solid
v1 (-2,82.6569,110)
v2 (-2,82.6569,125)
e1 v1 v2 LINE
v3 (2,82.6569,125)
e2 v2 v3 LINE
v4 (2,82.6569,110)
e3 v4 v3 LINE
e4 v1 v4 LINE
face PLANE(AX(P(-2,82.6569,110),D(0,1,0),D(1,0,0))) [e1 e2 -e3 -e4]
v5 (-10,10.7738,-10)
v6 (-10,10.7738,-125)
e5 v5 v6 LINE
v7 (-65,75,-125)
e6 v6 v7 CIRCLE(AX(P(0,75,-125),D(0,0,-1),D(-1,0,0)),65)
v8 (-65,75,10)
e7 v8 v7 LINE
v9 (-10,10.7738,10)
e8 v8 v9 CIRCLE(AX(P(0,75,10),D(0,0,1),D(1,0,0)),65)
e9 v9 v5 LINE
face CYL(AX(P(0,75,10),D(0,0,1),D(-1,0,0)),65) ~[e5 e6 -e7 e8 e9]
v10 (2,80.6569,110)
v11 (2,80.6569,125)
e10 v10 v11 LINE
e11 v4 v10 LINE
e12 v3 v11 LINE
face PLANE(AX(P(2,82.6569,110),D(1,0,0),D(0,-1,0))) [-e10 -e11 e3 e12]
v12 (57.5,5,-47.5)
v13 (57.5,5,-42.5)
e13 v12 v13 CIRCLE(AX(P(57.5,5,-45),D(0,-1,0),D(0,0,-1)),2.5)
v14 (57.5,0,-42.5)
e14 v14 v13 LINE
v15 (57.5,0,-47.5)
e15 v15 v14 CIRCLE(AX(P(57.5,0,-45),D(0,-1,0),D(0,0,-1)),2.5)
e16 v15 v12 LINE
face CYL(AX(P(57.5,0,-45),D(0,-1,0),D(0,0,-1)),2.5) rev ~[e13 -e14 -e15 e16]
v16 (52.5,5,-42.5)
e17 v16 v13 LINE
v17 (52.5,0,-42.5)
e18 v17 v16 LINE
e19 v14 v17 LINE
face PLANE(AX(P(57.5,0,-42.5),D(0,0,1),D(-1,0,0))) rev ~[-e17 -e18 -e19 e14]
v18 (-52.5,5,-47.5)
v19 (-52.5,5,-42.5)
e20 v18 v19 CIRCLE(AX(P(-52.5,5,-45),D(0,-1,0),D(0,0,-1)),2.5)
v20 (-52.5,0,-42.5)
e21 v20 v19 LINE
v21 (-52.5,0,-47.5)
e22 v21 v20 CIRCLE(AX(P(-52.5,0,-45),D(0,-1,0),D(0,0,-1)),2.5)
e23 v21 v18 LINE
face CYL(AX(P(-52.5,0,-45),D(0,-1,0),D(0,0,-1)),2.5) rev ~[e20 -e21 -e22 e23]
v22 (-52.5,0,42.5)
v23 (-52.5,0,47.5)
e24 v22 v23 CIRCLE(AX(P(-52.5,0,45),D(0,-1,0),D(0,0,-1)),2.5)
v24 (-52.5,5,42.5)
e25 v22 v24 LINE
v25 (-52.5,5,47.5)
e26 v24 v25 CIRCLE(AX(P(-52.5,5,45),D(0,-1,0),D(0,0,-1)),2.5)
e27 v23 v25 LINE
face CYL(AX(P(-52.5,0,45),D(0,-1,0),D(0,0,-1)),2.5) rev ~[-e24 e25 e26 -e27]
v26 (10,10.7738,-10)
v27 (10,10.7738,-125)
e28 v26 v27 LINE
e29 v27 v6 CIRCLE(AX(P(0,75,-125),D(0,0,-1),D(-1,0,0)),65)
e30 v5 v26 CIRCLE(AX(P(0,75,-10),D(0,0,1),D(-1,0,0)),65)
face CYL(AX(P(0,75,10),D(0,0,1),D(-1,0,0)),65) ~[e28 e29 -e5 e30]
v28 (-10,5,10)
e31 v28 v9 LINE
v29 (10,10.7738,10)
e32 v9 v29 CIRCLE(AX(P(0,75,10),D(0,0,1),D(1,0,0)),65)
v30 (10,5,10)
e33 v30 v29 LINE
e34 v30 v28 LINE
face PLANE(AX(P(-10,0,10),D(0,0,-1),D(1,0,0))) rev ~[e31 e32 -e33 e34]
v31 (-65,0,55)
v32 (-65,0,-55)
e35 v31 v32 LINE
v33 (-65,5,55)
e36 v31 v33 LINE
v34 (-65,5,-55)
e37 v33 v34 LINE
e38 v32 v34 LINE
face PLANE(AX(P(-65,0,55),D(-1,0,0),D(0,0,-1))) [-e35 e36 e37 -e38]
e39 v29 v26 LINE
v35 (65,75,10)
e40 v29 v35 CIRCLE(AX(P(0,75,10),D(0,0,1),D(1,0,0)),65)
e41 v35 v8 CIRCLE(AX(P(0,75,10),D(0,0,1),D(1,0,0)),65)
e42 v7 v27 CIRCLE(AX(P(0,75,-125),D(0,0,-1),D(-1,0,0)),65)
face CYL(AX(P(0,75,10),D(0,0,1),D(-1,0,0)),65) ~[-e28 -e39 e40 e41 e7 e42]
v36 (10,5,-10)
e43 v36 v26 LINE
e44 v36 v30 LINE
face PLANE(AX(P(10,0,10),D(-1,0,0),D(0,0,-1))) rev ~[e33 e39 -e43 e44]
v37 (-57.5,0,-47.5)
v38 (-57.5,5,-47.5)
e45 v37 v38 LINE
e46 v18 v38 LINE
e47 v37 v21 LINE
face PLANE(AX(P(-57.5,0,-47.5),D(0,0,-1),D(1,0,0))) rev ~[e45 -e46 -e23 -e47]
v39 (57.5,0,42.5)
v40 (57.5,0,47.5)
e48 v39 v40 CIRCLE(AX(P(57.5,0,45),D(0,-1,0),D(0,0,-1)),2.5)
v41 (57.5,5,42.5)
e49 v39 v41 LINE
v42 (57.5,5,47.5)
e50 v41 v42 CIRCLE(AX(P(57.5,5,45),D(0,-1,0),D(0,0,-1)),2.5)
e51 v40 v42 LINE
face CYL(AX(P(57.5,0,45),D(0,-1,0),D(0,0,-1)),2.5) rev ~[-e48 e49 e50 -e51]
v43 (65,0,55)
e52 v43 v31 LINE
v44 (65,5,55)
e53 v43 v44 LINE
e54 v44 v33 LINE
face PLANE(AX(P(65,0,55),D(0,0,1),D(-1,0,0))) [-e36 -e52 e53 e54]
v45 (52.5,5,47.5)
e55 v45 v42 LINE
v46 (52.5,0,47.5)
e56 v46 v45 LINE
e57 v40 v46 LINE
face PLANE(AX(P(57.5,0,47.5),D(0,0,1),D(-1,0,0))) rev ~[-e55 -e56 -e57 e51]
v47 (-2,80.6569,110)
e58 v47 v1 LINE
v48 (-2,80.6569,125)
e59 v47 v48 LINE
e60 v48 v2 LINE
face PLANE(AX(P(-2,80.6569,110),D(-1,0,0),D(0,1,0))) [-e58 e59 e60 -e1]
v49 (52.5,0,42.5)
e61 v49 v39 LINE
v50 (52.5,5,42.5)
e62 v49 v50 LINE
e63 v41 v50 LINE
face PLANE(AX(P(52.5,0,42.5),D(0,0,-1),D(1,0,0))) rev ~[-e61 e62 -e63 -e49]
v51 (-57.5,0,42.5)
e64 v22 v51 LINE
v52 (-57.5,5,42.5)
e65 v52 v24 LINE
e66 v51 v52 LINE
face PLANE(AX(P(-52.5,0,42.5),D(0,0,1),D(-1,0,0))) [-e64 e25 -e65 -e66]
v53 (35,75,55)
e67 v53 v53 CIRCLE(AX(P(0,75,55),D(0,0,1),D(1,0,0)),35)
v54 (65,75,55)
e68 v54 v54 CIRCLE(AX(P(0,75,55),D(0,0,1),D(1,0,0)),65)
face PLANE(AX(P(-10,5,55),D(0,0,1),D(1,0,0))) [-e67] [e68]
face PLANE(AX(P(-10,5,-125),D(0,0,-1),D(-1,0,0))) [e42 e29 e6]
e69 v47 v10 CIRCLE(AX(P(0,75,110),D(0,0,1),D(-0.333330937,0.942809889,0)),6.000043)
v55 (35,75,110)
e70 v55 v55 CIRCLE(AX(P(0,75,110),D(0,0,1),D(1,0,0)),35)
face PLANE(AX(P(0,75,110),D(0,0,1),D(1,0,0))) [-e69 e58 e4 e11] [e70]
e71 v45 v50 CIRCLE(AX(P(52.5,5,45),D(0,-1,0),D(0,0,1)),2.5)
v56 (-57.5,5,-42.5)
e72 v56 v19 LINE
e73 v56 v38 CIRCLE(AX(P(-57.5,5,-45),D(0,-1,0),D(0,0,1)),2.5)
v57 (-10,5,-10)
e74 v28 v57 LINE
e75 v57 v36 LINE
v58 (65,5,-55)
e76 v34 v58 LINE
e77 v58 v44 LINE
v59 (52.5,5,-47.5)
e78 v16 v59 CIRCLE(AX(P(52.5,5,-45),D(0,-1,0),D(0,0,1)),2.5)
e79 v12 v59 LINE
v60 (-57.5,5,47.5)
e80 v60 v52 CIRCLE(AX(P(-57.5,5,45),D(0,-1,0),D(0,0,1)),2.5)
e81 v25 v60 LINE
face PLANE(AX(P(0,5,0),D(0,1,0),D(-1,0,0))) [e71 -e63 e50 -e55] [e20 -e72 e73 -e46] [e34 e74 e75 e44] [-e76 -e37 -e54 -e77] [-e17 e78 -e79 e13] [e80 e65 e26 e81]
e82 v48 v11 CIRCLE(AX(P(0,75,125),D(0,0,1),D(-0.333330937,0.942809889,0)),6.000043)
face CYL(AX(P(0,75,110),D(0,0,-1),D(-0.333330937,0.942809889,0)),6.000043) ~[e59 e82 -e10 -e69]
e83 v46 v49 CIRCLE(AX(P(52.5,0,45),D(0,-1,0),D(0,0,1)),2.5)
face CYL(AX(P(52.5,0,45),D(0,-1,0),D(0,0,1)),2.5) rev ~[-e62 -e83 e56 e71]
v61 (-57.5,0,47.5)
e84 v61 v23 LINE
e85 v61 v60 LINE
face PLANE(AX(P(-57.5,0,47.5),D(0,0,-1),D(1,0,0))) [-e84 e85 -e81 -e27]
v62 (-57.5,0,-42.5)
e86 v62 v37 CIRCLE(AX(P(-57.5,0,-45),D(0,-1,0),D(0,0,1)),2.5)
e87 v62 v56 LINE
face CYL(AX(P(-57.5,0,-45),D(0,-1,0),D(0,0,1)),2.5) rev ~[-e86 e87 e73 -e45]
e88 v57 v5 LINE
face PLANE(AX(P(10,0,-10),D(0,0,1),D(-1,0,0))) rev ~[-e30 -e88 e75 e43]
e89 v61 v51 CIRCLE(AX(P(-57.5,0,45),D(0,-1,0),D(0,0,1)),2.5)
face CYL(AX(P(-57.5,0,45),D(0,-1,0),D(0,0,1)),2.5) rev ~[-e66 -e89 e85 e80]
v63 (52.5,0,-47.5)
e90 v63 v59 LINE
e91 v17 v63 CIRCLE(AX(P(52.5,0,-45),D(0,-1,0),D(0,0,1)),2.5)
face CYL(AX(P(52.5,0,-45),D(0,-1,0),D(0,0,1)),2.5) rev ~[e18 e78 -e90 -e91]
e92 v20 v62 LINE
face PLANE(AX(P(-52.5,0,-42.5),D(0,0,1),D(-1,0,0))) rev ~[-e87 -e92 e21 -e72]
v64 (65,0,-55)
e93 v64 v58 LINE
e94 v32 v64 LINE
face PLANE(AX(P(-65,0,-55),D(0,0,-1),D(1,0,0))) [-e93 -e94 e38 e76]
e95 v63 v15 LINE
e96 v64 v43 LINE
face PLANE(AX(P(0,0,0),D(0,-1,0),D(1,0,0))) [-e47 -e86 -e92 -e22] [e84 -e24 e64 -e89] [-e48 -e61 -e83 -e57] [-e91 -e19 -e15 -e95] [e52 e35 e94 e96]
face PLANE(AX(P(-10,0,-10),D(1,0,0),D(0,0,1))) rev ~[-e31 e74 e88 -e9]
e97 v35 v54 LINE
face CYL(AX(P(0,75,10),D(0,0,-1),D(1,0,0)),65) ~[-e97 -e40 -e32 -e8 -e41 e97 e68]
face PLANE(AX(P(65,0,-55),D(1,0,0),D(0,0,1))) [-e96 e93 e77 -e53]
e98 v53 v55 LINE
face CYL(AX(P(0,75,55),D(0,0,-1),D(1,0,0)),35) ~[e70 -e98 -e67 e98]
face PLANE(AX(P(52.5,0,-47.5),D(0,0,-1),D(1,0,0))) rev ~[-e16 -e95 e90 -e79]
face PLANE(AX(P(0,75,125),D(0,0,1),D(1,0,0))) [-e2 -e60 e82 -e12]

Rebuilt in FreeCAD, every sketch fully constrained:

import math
import FreeCAD as App
import Part
import Sketcher


def add_polygon(sketch, points):
    """Adds a closed chain of lines whose ends are joined by coincident constraints."""
    first, n = sketch.GeometryCount, len(points)
    for a, b in zip(points, points[1:] + points[:1]):
        sketch.addGeometry(Part.LineSegment(App.Vector(*a, 0), App.Vector(*b, 0)), False)
    for i in range(n):
        sketch.addConstraint(Sketcher.Constraint("Coincident", first + i, 2, first + (i + 1) % n, 1))

doc = App.newDocument("Part")
body = doc.addObject("PartDesign::Body", "Body")

# Sketch on XZ plane
sketch1 = body.newObject("Sketcher::SketchObject", "Sketch")
sketch1.AttachmentSupport = (doc.getObject("XZ_Plane"), [""])
sketch1.MapMode = "FlatFace"
add_polygon(sketch1, [(65, -55), (-65, -55), (-65, 55), (65, 55)])  # lines 0-3
sketch1.addConstraint(Sketcher.Constraint("Horizontal", 0))
sketch1.addConstraint(Sketcher.Constraint("Vertical", 1))
sketch1.addConstraint(Sketcher.Constraint("Horizontal", 2))
sketch1.addConstraint(Sketcher.Constraint("Vertical", 3))
sketch1.addConstraint(Sketcher.Constraint("Symmetric", 0, 2, 2, 2, -1, 1))
sketch1.addConstraint(Sketcher.Constraint("DistanceX", 0, 2, 0, 1, 130.0))
sketch1.addConstraint(Sketcher.Constraint("DistanceY", 1, 1, 1, 2, 110.0))
pad1 = body.newObject("PartDesign::Pad", "Pad")
pad1.Profile = sketch1
pad1.Length = 5
pad1.Reversed = True

# Sketch on XZ plane
sketch2 = body.newObject("Sketcher::SketchObject", "Sketch001")
sketch2.AttachmentSupport = (doc.getObject("XZ_Plane"), [""])
sketch2.MapMode = "FlatFace"
sketch2.addGeometry(Part.LineSegment(App.Vector(-52.5, 47.5, 0), App.Vector(-57.5, 47.5, 0)), False)
sketch2.addGeometry(Part.ArcOfCircle(Part.Circle(App.Vector(-57.5, 45, 0), App.Vector(0, 0, 1), 2.5), math.radians(90), math.radians(270)), False)
sketch2.addGeometry(Part.LineSegment(App.Vector(-57.5, 42.5, 0), App.Vector(-52.5, 42.5, 0)), False)
sketch2.addGeometry(Part.ArcOfCircle(Part.Circle(App.Vector(-52.5, 45, 0), App.Vector(0, 0, 1), 2.5), math.radians(-90), math.radians(90)), False)
sketch2.addGeometry(Part.ArcOfCircle(Part.Circle(App.Vector(57.5, 45, 0), App.Vector(0, 0, 1), 2.5), math.radians(-90), math.radians(90)), False)
sketch2.addGeometry(Part.LineSegment(App.Vector(57.5, 47.5, 0), App.Vector(52.5, 47.5, 0)), False)
sketch2.addGeometry(Part.ArcOfCircle(Part.Circle(App.Vector(52.5, 45, 0), App.Vector(0, 0, 1), 2.5), math.radians(90), math.radians(270)), False)
sketch2.addGeometry(Part.LineSegment(App.Vector(52.5, 42.5, 0), App.Vector(57.5, 42.5, 0)), False)
sketch2.addGeometry(Part.ArcOfCircle(Part.Circle(App.Vector(57.5, -45, 0), App.Vector(0, 0, 1), 2.5), math.radians(-90), math.radians(90)), False)
sketch2.addGeometry(Part.LineSegment(App.Vector(57.5, -42.5, 0), App.Vector(52.5, -42.5, 0)), False)
sketch2.addGeometry(Part.ArcOfCircle(Part.Circle(App.Vector(52.5, -45, 0), App.Vector(0, 0, 1), 2.5), math.radians(90), math.radians(270)), False)
sketch2.addGeometry(Part.LineSegment(App.Vector(52.5, -47.5, 0), App.Vector(57.5, -47.5, 0)), False)
sketch2.addGeometry(Part.ArcOfCircle(Part.Circle(App.Vector(-57.5, -45, 0), App.Vector(0, 0, 1), 2.5), math.radians(90), math.radians(270)), False)
sketch2.addGeometry(Part.LineSegment(App.Vector(-57.5, -47.5, 0), App.Vector(-52.5, -47.5, 0)), False)
sketch2.addGeometry(Part.ArcOfCircle(Part.Circle(App.Vector(-52.5, -45, 0), App.Vector(0, 0, 1), 2.5), math.radians(-90), math.radians(90)), False)
sketch2.addGeometry(Part.LineSegment(App.Vector(-52.5, -42.5, 0), App.Vector(-57.5, -42.5, 0)), False)
sketch2.addConstraint(Sketcher.Constraint("Tangent", 0, 2, 1, 1))
sketch2.addConstraint(Sketcher.Constraint("Tangent", 1, 2, 2, 1))
sketch2.addConstraint(Sketcher.Constraint("Tangent", 2, 2, 3, 1))
sketch2.addConstraint(Sketcher.Constraint("Tangent", 3, 2, 0, 1))
sketch2.addConstraint(Sketcher.Constraint("Tangent", 4, 2, 5, 1))
sketch2.addConstraint(Sketcher.Constraint("Tangent", 5, 2, 6, 1))
sketch2.addConstraint(Sketcher.Constraint("Tangent", 6, 2, 7, 1))
sketch2.addConstraint(Sketcher.Constraint("Tangent", 7, 2, 4, 1))
sketch2.addConstraint(Sketcher.Constraint("Tangent", 8, 2, 9, 1))
sketch2.addConstraint(Sketcher.Constraint("Tangent", 9, 2, 10, 1))
sketch2.addConstraint(Sketcher.Constraint("Tangent", 10, 2, 11, 1))
sketch2.addConstraint(Sketcher.Constraint("Tangent", 11, 2, 8, 1))
sketch2.addConstraint(Sketcher.Constraint("Tangent", 12, 2, 13, 1))
sketch2.addConstraint(Sketcher.Constraint("Tangent", 13, 2, 14, 1))
sketch2.addConstraint(Sketcher.Constraint("Tangent", 14, 2, 15, 1))
sketch2.addConstraint(Sketcher.Constraint("Tangent", 15, 2, 12, 1))
sketch2.addConstraint(Sketcher.Constraint("Horizontal", 0))
sketch2.addConstraint(Sketcher.Constraint("Horizontal", 2))
sketch2.addConstraint(Sketcher.Constraint("Horizontal", 5))
sketch2.addConstraint(Sketcher.Constraint("Horizontal", 7))
sketch2.addConstraint(Sketcher.Constraint("Horizontal", 9))
sketch2.addConstraint(Sketcher.Constraint("Horizontal", 11))
sketch2.addConstraint(Sketcher.Constraint("Horizontal", 13))
sketch2.addConstraint(Sketcher.Constraint("Horizontal", 15))
sketch2.addConstraint(Sketcher.Constraint("Equal", 3, 4))
sketch2.addConstraint(Sketcher.Constraint("Equal", 6, 8))
sketch2.addConstraint(Sketcher.Constraint("Equal", 10, 12))
sketch2.addConstraint(Sketcher.Constraint("Symmetric", 1, 3, 8, 3, -1, 1))
sketch2.addConstraint(Sketcher.Constraint("Symmetric", 4, 3, 12, 3, -1, 1))
sketch2.addConstraint(Sketcher.Constraint("Symmetric", 1, 3, 4, 3, -2))
sketch2.addConstraint(Sketcher.Constraint("Vertical", 6, 3, 10, 3))
sketch2.addConstraint(Sketcher.Constraint("Vertical", 3, 3, 14, 3))
sketch2.addConstraint(Sketcher.Constraint("Equal", 2, 5))
sketch2.addConstraint(Sketcher.Constraint("Radius", 1, 2.5))
sketch2.addConstraint(Sketcher.Constraint("DistanceX", 0, 2, 0, 1, 5.0))
sketch2.addConstraint(Sketcher.Constraint("DistanceX", 3, 3, 4, 3, 110.0))
sketch2.addConstraint(Sketcher.Constraint("DistanceY", 8, 3, 4, 3, 90.0))
pocket1 = body.newObject("PartDesign::Pocket", "Pocket")
pocket1.Profile = sketch2
pocket1.Type = "ThroughAll"

# Sketch on XZ plane
sketch3 = body.newObject("Sketcher::SketchObject", "Sketch002")
sketch3.AttachmentSupport = (doc.getObject("XZ_Plane"), [""])
sketch3.MapMode = "FlatFace"
add_polygon(sketch3, [(-10, -10), (10, -10), (10, 10), (-10, 10)])  # lines 0-3
sketch3.addConstraint(Sketcher.Constraint("Horizontal", 0))
sketch3.addConstraint(Sketcher.Constraint("Vertical", 1))
sketch3.addConstraint(Sketcher.Constraint("Horizontal", 2))
sketch3.addConstraint(Sketcher.Constraint("Vertical", 3))
sketch3.addConstraint(Sketcher.Constraint("Symmetric", 0, 2, 2, 2, -1, 1))
sketch3.addConstraint(Sketcher.Constraint("Equal", 2, 1))
sketch3.addConstraint(Sketcher.Constraint("DistanceX", 0, 1, 0, 2, 20.0))
pad2 = body.newObject("PartDesign::Pad", "Pad001")
pad2.Profile = sketch3
pad2.Length = 75
pad2.Reversed = True

# Sketch on XY plane
sketch4 = body.newObject("Sketcher::SketchObject", "Sketch003")
sketch4.AttachmentSupport = (doc.getObject("XY_Plane"), [""])
sketch4.MapMode = "FlatFace"
sketch4.AttachmentOffset = App.Placement(App.Vector(0, 0, 10), App.Rotation())
sketch4.addGeometry(Part.Circle(App.Vector(0, 75, 0), App.Vector(0, 0, 1), 65), False)
sketch4.addConstraint(Sketcher.Constraint("PointOnObject", 0, 3, -2))
sketch4.addConstraint(Sketcher.Constraint("Diameter", 0, 130.0))
sketch4.addConstraint(Sketcher.Constraint("DistanceY", -1, 1, 0, 3, 75.0))
pad3 = body.newObject("PartDesign::Pad", "Pad002")
pad3.Profile = sketch4
pad3.Length = 45

# Sketch on XY plane
sketch5 = body.newObject("Sketcher::SketchObject", "Sketch004")
sketch5.AttachmentSupport = (doc.getObject("XY_Plane"), [""])
sketch5.MapMode = "FlatFace"
sketch5.AttachmentOffset = App.Placement(App.Vector(0, 0, 55), App.Rotation())
sketch5.addGeometry(Part.Circle(App.Vector(0, 75, 0), App.Vector(0, 0, 1), 35), False)
sketch5.addConstraint(Sketcher.Constraint("PointOnObject", 0, 3, -2))
sketch5.addConstraint(Sketcher.Constraint("Diameter", 0, 70.0))
sketch5.addConstraint(Sketcher.Constraint("DistanceY", -1, 1, 0, 3, 75.0))
pad4 = body.newObject("PartDesign::Pad", "Pad003")
pad4.Profile = sketch5
pad4.Length = 55

# Sketch on XY plane
sketch6 = body.newObject("Sketcher::SketchObject", "Sketch005")
sketch6.AttachmentSupport = (doc.getObject("XY_Plane"), [""])
sketch6.MapMode = "FlatFace"
sketch6.AttachmentOffset = App.Placement(App.Vector(0, 0, 110), App.Rotation())
sketch6.addGeometry(Part.LineSegment(App.Vector(-2, 82.6569, 0), App.Vector(-2, 80.6569, 0)), False)
sketch6.addGeometry(Part.ArcOfCircle(Part.Circle(App.Vector(0, 75, 0), App.Vector(0, 0, 1), 6.000043), math.radians(109.471075), math.radians(430.528925)), False)
sketch6.addGeometry(Part.LineSegment(App.Vector(2, 80.6569, 0), App.Vector(2, 82.6569, 0)), False)
sketch6.addGeometry(Part.LineSegment(App.Vector(2, 82.6569, 0), App.Vector(-2, 82.6569, 0)), False)
sketch6.addConstraint(Sketcher.Constraint("Coincident", 0, 2, 1, 1))
sketch6.addConstraint(Sketcher.Constraint("Coincident", 1, 2, 2, 1))
sketch6.addConstraint(Sketcher.Constraint("Coincident", 2, 2, 3, 1))
sketch6.addConstraint(Sketcher.Constraint("Coincident", 3, 2, 0, 1))
sketch6.addConstraint(Sketcher.Constraint("Vertical", 0))
sketch6.addConstraint(Sketcher.Constraint("Vertical", 2))
sketch6.addConstraint(Sketcher.Constraint("Horizontal", 3))
sketch6.addConstraint(Sketcher.Constraint("Symmetric", 0, 2, 1, 2, -2))
sketch6.addConstraint(Sketcher.Constraint("Radius", 1, 6.0))
sketch6.addConstraint(Sketcher.Constraint("DistanceX", 3, 2, 3, 1, 4.0))
sketch6.addConstraint(Sketcher.Constraint("DistanceY", 0, 2, 0, 1, 2.0))
sketch6.addConstraint(Sketcher.Constraint("DistanceY", -1, 1, 1, 3, 75.0))
pad5 = body.newObject("PartDesign::Pad", "Pad004")
pad5.Profile = sketch6
pad5.Length = 15

# Sketch on XY plane
sketch7 = body.newObject("Sketcher::SketchObject", "Sketch006")
sketch7.AttachmentSupport = (doc.getObject("XY_Plane"), [""])
sketch7.MapMode = "FlatFace"
sketch7.AttachmentOffset = App.Placement(App.Vector(0, 0, 10), App.Rotation())
sketch7.addGeometry(Part.Circle(App.Vector(0, 75, 0), App.Vector(0, 0, 1), 65), False)
sketch7.addConstraint(Sketcher.Constraint("PointOnObject", 0, 3, -2))
sketch7.addConstraint(Sketcher.Constraint("Diameter", 0, 130.0))
sketch7.addConstraint(Sketcher.Constraint("DistanceY", -1, 1, 0, 3, 75.0))
pad6 = body.newObject("PartDesign::Pad", "Pad005")
pad6.Profile = sketch7
pad6.Length = 135
pad6.Reversed = True

doc.recompute()
